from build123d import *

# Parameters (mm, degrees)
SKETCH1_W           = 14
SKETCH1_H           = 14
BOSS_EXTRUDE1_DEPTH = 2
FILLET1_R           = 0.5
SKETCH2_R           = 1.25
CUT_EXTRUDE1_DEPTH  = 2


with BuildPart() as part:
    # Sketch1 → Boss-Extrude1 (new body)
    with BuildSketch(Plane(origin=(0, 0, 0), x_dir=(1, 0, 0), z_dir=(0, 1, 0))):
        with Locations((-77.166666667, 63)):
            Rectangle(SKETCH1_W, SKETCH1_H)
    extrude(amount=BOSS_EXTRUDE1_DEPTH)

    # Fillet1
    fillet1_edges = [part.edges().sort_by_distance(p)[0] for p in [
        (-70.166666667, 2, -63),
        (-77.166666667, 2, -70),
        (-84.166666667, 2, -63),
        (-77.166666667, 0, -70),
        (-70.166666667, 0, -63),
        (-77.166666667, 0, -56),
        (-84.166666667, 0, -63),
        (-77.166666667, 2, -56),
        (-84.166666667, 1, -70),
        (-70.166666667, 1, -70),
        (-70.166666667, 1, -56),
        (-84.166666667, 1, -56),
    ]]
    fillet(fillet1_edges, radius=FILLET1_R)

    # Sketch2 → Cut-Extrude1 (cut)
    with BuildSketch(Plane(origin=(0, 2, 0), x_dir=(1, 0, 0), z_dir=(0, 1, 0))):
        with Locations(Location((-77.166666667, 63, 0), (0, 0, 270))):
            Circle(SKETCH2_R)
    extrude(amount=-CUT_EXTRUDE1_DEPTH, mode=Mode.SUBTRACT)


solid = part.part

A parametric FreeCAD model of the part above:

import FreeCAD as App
import Part
import Sketcher

V = App.Vector

doc = App.newDocument("Part")
body = doc.addObject("PartDesign::Body", "Body")

# Sketch on XZ plane
sketch1 = body.newObject("Sketcher::SketchObject", "Sketch")
sketch1.AttachmentSupport = (doc.getObject("XZ_Plane"), [""])
sketch1.MapMode = "FlatFace"
sketch1.addGeometry([
    Part.LineSegment(V(-84, -70, 0), V(-84, -56, 0)),
    Part.LineSegment(V(-84, -56, 0), V(-70, -56, 0)),
    Part.LineSegment(V(-70, -56, 0), V(-70, -70, 0)),
    Part.LineSegment(V(-70, -70, 0), V(-84, -70, 0)),
], False)
sketch1.addConstraint([
    Sketcher.Constraint("Coincident", 0, 2, 1, 1),
    Sketcher.Constraint("Coincident", 1, 2, 2, 1),
    Sketcher.Constraint("Coincident", 2, 2, 3, 1),
    Sketcher.Constraint("Coincident", 3, 2, 0, 1),
    Sketcher.Constraint("Vertical", 0),
    Sketcher.Constraint("Horizontal", 1),
    Sketcher.Constraint("Vertical", 2),
    Sketcher.Constraint("Horizontal", 3),
    Sketcher.Constraint("Equal", 3, 0),
    Sketcher.Constraint("DistanceX", 1, 1, 1, 2, 14.0),
    Sketcher.Constraint("DistanceY", 0, 2, -1, 1, 56.0),
    Sketcher.Constraint("DistanceX", 0, 2, -1, 1, 84.166667),
])
pad1 = body.newObject("PartDesign::Pad", "Pad")
pad1.Profile = sketch1
pad1.Length = 2
pad1.Reversed = True
doc.recompute()

fillet = body.newObject("PartDesign::Fillet", "Fillet")
fillet.Base = (pad1, ["Edge1"])
fillet.UseAllEdges = True
fillet.Radius = 0.5

# Sketch on XZ plane
sketch2 = body.newObject("Sketcher::SketchObject", "Sketch001")
sketch2.AttachmentSupport = (doc.getObject("XZ_Plane"), [""])
sketch2.MapMode = "FlatFace"
sketch2.AttachmentOffset = App.Placement(V(0, 0, -2), App.Rotation())
sketch2.addGeometry(Part.Circle(V(-77.2, -63, 0), V(0, 0, 1), 1.2), False)
sketch2.addConstraint([
    Sketcher.Constraint("Diameter", 0, 2.5),
    Sketcher.Constraint("DistanceY", 0, 3, -1, 1, 63.0),
    Sketcher.Constraint("DistanceX", 0, 3, -1, 1, 77.166667),
])
pocket1 = body.newObject("PartDesign::Pocket", "Pocket")
pocket1.Profile = sketch2
pocket1.Length = 2
pocket1.Reversed = True

doc.recompute()
